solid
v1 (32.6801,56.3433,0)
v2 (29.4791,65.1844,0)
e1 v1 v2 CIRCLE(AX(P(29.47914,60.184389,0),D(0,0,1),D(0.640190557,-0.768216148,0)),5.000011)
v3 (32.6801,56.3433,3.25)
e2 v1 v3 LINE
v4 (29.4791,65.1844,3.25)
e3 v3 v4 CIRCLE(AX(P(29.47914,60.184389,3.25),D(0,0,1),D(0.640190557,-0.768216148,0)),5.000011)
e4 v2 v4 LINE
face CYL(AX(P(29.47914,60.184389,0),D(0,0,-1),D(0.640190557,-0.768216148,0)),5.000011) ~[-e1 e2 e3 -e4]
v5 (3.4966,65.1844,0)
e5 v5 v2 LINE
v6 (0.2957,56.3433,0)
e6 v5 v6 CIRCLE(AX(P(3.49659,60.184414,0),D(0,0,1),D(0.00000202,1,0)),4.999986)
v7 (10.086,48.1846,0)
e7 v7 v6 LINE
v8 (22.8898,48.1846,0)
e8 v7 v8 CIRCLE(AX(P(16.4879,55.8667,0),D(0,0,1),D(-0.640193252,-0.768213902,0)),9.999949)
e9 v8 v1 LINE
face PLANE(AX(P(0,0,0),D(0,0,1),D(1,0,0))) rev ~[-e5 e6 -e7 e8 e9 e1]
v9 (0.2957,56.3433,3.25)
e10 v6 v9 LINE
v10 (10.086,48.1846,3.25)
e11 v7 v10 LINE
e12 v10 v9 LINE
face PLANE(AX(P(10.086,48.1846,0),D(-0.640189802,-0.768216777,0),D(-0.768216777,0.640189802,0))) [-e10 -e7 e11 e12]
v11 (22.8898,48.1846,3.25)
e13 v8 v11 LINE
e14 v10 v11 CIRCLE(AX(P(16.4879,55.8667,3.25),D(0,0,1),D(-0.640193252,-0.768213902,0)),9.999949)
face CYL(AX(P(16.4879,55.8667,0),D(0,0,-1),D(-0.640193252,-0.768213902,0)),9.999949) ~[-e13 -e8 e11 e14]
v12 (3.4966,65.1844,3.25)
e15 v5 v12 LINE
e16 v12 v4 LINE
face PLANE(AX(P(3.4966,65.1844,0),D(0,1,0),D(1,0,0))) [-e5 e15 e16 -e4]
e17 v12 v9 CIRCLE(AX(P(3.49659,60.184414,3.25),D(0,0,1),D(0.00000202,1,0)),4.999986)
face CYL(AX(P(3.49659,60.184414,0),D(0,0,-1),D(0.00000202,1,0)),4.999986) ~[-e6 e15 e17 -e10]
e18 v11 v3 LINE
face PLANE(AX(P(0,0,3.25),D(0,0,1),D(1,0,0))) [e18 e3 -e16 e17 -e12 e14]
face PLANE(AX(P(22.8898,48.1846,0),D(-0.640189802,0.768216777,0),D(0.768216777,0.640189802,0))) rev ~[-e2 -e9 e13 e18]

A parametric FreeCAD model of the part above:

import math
import FreeCAD as App
import Part
import Sketcher

V = App.Vector
Q = App.Units.Quantity

doc = App.newDocument("Part")
body = doc.addObject("PartDesign::Body", "Body")

sketch1 = body.newObject("Sketcher::SketchObject", "Sketch")
sketch1.AttachmentSupport = (doc.getObject("XY_Plane"), [""])
sketch1.MapMode = "FlatFace"
sketch1.addGeometry(Part.LineSegment(V(0, 56, 0), V(10, 48, 0)), False)
sketch1.addGeometry(Part.ArcOfCircle(Part.Circle(V(16, 56, 0), V(0, 0, 1), 10), math.radians(-130), math.radians(-50)), False)
sketch1.addGeometry(Part.LineSegment(V(23, 48, 0), V(33, 56, 0)), False)
sketch1.addGeometry(Part.ArcOfCircle(Part.Circle(V(29, 60, 0), V(0, 0, 1), 5), math.radians(-50), math.radians(90)), False)
sketch1.addGeometry(Part.LineSegment(V(29, 65, 0), V(3, 65, 0)), False)
sketch1.addGeometry(Part.ArcOfCircle(Part.Circle(V(3, 60, 0), V(0, 0, 1), 5), math.radians(90), math.radians(230)), False)
sketch1.addConstraint(Sketcher.Constraint("Tangent", 0, 2, 1, 1))
sketch1.addConstraint(Sketcher.Constraint("Tangent", 1, 2, 2, 1))
sketch1.addConstraint(Sketcher.Constraint("Tangent", 2, 2, 3, 1))
sketch1.addConstraint(Sketcher.Constraint("Tangent", 3, 2, 4, 1))
sketch1.addConstraint(Sketcher.Constraint("Tangent", 4, 2, 5, 1))
sketch1.addConstraint(Sketcher.Constraint("Tangent", 5, 2, 0, 1))
sketch1.addConstraint(Sketcher.Constraint("Horizontal", 4))
sketch1.addConstraint(Sketcher.Constraint("Equal", 3, 5))
sketch1.addConstraint(Sketcher.Constraint("Horizontal", 0, 2, 1, 2))
sketch1.addConstraint(Sketcher.Constraint("Radius", 1, Q("10 mm")))
sketch1.addConstraint(Sketcher.Constraint("Radius", 3, Q("5 mm")))
sketch1.addConstraint(Sketcher.Constraint("DistanceX", -1, 1, 2, 2, Q("32.68 mm")))
sketch1.addConstraint(Sketcher.Constraint("DistanceX", 4, 2, 4, 1, Q("25.9825 mm")))
sketch1.addConstraint(Sketcher.Constraint("DistanceX", -1, 1, 1, 3, Q("16.488 mm")))
sketch1.addConstraint(Sketcher.Constraint("DistanceY", -1, 1, 1, 3, Q("55.8667 mm")))
pad1 = body.newObject("PartDesign::Pad", "Pad")
pad1.Profile = sketch1
pad1.Length = 3.25

doc.recompute()
